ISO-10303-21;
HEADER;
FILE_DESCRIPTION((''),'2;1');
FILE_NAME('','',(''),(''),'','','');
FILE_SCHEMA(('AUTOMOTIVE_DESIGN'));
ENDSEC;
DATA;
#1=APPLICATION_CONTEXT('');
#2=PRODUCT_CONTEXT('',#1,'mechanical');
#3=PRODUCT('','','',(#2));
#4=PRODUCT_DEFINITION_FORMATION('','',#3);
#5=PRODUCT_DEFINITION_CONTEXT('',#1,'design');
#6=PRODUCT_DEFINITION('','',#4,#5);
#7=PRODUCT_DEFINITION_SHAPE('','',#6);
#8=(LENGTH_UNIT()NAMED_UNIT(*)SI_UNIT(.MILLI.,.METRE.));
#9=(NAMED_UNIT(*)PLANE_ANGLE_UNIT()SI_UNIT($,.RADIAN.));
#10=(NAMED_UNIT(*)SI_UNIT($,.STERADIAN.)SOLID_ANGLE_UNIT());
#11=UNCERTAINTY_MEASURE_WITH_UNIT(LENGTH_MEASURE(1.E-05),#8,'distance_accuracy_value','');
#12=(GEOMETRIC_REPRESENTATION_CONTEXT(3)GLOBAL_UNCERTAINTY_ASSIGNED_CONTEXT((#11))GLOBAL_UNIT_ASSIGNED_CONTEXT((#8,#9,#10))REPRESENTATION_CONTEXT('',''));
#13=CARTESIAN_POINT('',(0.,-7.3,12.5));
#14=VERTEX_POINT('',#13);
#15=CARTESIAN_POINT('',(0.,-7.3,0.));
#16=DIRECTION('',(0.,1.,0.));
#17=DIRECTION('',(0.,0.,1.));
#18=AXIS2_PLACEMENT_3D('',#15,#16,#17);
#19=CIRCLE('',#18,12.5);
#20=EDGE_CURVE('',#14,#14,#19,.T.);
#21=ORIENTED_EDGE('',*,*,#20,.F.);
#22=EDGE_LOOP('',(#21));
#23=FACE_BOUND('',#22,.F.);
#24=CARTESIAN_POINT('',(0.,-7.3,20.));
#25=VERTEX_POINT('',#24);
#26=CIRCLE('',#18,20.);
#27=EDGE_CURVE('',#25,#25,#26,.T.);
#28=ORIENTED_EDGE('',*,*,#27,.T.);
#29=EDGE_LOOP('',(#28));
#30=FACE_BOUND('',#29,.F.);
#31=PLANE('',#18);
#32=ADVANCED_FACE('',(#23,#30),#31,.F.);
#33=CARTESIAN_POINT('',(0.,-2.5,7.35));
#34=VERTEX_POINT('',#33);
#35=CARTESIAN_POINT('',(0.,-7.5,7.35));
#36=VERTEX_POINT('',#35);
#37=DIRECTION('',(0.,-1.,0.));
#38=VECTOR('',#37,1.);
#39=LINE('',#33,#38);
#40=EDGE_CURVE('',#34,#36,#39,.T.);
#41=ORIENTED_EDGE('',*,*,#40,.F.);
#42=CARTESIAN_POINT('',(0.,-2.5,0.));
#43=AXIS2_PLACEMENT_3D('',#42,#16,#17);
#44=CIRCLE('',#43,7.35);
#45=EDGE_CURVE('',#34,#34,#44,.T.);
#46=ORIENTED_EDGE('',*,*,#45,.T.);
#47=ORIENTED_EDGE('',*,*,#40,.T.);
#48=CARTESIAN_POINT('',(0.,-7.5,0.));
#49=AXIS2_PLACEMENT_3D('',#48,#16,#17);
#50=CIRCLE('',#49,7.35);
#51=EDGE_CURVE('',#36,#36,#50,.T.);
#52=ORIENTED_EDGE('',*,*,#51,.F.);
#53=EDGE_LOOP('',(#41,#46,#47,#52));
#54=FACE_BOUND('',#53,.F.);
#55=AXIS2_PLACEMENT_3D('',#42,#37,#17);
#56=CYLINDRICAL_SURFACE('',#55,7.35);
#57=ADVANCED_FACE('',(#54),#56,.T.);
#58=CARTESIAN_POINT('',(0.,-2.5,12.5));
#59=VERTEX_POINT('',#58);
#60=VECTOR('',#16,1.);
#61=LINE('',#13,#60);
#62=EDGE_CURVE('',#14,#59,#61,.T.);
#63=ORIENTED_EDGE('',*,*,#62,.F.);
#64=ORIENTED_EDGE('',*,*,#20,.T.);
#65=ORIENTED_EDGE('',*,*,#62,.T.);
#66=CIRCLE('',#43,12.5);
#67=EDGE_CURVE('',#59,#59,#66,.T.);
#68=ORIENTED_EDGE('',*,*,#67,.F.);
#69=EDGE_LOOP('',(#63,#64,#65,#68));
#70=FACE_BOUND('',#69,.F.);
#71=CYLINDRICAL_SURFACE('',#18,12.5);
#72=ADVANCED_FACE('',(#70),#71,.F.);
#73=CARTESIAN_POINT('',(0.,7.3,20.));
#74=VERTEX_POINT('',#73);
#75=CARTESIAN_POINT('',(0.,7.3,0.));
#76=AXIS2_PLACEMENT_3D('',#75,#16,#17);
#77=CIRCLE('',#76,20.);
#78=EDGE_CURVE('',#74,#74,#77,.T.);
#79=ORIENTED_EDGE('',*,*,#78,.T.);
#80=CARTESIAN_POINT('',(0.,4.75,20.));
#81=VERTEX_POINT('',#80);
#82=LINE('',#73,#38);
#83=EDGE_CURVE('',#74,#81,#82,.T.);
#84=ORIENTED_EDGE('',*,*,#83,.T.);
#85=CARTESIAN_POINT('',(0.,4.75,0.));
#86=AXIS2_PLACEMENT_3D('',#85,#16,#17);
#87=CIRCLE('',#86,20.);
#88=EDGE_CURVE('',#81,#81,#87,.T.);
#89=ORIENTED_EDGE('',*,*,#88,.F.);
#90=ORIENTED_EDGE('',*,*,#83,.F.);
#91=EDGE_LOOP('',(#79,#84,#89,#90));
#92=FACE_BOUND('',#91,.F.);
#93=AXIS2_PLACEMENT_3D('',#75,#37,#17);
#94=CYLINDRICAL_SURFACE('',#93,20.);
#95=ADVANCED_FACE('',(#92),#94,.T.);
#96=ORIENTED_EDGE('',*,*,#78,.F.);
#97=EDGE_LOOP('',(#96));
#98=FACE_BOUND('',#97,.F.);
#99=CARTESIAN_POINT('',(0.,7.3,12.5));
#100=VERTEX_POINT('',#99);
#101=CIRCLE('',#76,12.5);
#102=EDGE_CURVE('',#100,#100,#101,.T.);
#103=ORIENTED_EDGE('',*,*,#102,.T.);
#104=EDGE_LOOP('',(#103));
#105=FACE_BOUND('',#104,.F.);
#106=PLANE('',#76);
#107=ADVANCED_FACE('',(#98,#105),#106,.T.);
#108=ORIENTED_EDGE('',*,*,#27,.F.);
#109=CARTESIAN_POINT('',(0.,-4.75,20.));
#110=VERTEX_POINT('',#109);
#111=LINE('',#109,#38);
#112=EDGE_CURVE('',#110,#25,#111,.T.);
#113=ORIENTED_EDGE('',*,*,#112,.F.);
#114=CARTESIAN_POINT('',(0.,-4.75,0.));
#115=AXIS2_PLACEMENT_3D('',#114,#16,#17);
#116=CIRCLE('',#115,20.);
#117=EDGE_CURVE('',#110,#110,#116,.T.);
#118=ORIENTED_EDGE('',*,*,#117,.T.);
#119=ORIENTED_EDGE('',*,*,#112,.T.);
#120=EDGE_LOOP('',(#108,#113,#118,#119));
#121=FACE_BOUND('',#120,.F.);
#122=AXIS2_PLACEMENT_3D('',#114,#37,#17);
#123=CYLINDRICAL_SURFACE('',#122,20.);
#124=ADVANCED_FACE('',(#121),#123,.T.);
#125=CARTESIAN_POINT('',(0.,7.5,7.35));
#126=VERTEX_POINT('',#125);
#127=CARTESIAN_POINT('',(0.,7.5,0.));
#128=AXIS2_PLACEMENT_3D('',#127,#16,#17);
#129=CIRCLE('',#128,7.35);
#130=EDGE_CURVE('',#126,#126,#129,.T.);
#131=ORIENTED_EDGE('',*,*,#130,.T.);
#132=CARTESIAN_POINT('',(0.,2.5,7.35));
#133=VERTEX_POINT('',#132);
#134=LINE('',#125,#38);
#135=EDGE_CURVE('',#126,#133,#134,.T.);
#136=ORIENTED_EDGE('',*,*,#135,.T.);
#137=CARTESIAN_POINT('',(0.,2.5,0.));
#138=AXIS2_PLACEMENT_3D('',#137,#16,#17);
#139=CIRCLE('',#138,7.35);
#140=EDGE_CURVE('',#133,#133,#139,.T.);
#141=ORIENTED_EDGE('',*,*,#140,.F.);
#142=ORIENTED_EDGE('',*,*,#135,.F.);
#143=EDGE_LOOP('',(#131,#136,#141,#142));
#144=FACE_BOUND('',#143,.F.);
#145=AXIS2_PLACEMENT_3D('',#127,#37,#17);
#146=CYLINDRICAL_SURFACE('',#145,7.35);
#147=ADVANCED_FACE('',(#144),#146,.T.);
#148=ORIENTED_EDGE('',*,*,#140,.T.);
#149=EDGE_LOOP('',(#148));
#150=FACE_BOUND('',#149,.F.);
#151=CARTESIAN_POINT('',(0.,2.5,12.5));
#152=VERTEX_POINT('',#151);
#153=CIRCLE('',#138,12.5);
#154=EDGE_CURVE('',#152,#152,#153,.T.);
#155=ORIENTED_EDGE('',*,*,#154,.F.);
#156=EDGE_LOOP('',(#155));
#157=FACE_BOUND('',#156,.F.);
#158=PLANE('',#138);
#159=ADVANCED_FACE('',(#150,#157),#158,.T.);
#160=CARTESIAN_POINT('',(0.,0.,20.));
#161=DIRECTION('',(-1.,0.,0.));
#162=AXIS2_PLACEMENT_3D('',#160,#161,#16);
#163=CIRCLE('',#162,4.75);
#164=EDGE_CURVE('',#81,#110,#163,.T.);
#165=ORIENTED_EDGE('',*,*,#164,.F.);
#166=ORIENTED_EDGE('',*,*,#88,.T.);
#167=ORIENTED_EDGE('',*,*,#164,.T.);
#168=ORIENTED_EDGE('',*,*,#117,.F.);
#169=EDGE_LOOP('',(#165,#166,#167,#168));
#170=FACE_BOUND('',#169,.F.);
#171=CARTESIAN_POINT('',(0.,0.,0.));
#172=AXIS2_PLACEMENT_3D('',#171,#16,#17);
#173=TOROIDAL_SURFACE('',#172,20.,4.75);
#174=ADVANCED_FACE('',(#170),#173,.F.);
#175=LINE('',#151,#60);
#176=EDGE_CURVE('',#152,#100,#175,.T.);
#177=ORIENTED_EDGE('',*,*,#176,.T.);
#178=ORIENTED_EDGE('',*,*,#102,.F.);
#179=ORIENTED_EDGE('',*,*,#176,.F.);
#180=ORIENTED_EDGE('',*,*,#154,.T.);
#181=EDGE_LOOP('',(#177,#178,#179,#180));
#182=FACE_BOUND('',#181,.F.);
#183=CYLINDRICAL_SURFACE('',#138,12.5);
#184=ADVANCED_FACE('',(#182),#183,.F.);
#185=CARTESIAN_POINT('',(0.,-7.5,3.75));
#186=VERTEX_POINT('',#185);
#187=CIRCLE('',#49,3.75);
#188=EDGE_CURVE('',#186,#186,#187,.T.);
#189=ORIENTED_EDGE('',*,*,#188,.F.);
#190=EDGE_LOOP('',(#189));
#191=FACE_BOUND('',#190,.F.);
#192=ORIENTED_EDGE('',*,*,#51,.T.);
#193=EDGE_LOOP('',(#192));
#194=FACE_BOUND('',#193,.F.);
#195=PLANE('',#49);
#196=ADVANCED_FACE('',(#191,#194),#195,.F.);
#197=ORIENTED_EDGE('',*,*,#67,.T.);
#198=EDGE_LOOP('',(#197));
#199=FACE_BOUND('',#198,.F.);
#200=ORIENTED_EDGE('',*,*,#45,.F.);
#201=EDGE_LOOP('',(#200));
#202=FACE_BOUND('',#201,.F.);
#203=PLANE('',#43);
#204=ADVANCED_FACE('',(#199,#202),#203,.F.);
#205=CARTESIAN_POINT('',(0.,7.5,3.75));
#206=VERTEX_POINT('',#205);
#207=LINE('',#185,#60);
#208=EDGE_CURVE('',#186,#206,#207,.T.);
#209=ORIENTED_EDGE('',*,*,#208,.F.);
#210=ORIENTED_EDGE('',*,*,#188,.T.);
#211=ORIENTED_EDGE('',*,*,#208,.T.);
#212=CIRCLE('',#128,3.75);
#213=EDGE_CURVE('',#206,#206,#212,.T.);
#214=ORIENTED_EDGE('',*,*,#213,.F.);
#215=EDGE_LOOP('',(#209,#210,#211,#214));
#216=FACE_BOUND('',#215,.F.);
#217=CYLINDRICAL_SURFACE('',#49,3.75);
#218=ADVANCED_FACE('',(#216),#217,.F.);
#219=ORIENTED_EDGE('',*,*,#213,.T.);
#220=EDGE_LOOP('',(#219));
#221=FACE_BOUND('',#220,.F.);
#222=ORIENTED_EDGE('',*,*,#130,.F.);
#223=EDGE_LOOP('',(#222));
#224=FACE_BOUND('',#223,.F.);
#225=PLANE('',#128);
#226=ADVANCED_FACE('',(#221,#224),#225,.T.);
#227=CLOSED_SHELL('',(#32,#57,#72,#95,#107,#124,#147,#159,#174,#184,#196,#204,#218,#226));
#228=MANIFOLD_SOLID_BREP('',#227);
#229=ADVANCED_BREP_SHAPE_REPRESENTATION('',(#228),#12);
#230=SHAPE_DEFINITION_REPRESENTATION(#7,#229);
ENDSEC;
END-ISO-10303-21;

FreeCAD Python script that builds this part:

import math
import FreeCAD as App
import Part
import Sketcher

doc = App.newDocument("Part")
body = doc.addObject("PartDesign::Body", "Body")

sketch1 = doc.addObject("Sketcher::SketchObject", "Sketch")
body.addObject(sketch1)
sketch1.AttachmentSupport = (doc.YZ_Plane, [""])
sketch1.MapMode = "FlatFace"
sketch1.addGeometry(Part.LineSegment(App.Vector(-7.5, 7.3, 0), App.Vector(-7.5, 3.8, 0)), False)
sketch1.addGeometry(Part.LineSegment(App.Vector(-7.5, 3.8, 0), App.Vector(7.5, 3.8, 0)), False)
sketch1.addGeometry(Part.LineSegment(App.Vector(7.5, 3.8, 0), App.Vector(7.5, 7.3, 0)), False)
sketch1.addGeometry(Part.LineSegment(App.Vector(7.5, 7.3, 0), App.Vector(2.5, 7.3, 0)), False)
sketch1.addGeometry(Part.LineSegment(App.Vector(2.5, 7.3, 0), App.Vector(2.5, 12.5, 0)), False)
sketch1.addGeometry(Part.LineSegment(App.Vector(2.5, 12.5, 0), App.Vector(7.3, 12.5, 0)), False)
sketch1.addGeometry(Part.LineSegment(App.Vector(7.3, 12.5, 0), App.Vector(7.3, 20, 0)), False)
sketch1.addGeometry(Part.LineSegment(App.Vector(7.3, 20, 0), App.Vector(4.8, 20, 0)), False)
sketch1.addGeometry(Part.ArcOfCircle(Part.Circle(App.Vector(0, 20, 0), App.Vector(0, 0, 1), 4.8), math.radians(180), math.radians(360)), False)
sketch1.addGeometry(Part.LineSegment(App.Vector(-4.8, 20, 0), App.Vector(-7.3, 20, 0)), False)
sketch1.addGeometry(Part.LineSegment(App.Vector(-7.3, 20, 0), App.Vector(-7.3, 12.5, 0)), False)
sketch1.addGeometry(Part.LineSegment(App.Vector(-7.3, 12.5, 0), App.Vector(-2.5, 12.5, 0)), False)
sketch1.addGeometry(Part.LineSegment(App.Vector(-2.5, 12.5, 0), App.Vector(-2.5, 7.3, 0)), False)
sketch1.addGeometry(Part.LineSegment(App.Vector(-2.5, 7.3, 0), App.Vector(-7.5, 7.3, 0)), False)
sketch1.addConstraint(Sketcher.Constraint("Coincident", 0, 2, 1, 1))
sketch1.addConstraint(Sketcher.Constraint("Coincident", 1, 2, 2, 1))
sketch1.addConstraint(Sketcher.Constraint("Coincident", 2, 2, 3, 1))
sketch1.addConstraint(Sketcher.Constraint("Coincident", 3, 2, 4, 1))
sketch1.addConstraint(Sketcher.Constraint("Coincident", 4, 2, 5, 1))
sketch1.addConstraint(Sketcher.Constraint("Coincident", 5, 2, 6, 1))
sketch1.addConstraint(Sketcher.Constraint("Coincident", 6, 2, 7, 1))
sketch1.addConstraint(Sketcher.Constraint("Coincident", 7, 2, 8, 2))
sketch1.addConstraint(Sketcher.Constraint("Coincident", 8, 1, 9, 1))
sketch1.addConstraint(Sketcher.Constraint("Coincident", 9, 2, 10, 1))
sketch1.addConstraint(Sketcher.Constraint("Coincident", 10, 2, 11, 1))
sketch1.addConstraint(Sketcher.Constraint("Coincident", 11, 2, 12, 1))
sketch1.addConstraint(Sketcher.Constraint("Coincident", 12, 2, 13, 1))
sketch1.addConstraint(Sketcher.Constraint("Coincident", 13, 2, 0, 1))
sketch1.addConstraint(Sketcher.Constraint("Vertical", 0))
sketch1.addConstraint(Sketcher.Constraint("Horizontal", 1))
sketch1.addConstraint(Sketcher.Constraint("Vertical", 2))
sketch1.addConstraint(Sketcher.Constraint("Horizontal", 3))
sketch1.addConstraint(Sketcher.Constraint("Vertical", 4))
sketch1.addConstraint(Sketcher.Constraint("Horizontal", 5))
sketch1.addConstraint(Sketcher.Constraint("Vertical", 6))
sketch1.addConstraint(Sketcher.Constraint("Horizontal", 7))
sketch1.addConstraint(Sketcher.Constraint("Horizontal", 9))
sketch1.addConstraint(Sketcher.Constraint("Vertical", 10))
sketch1.addConstraint(Sketcher.Constraint("Horizontal", 11))
sketch1.addConstraint(Sketcher.Constraint("Vertical", 12))
sketch1.addConstraint(Sketcher.Constraint("Horizontal", 13))
sketch1.addConstraint(Sketcher.Constraint("Symmetric", 7, 2, 8, 1, -2))
sketch1.addConstraint(Sketcher.Constraint("Symmetric", 5, 2, 10, 2, -2))
sketch1.addConstraint(Sketcher.Constraint("Symmetric", 3, 2, 12, 2, -2))
sketch1.addConstraint(Sketcher.Constraint("Horizontal", 8, 3, 6, 2))
sketch1.addConstraint(Sketcher.Constraint("Equal", 3, 13))
sketch1.addConstraint(Sketcher.Constraint("DistanceX", 1, 1, 1, 2, 15.0))
sketch1.addConstraint(Sketcher.Constraint("DistanceX", 3, 2, 3, 1, 5.0))
sketch1.addConstraint(Sketcher.Constraint("Radius", 8, 4.75))
sketch1.addConstraint(Sketcher.Constraint("DistanceX", 5, 1, 5, 2, 4.8))
sketch1.addConstraint(Sketcher.Constraint("DistanceY", 0, 2, 0, 1, 3.6))
sketch1.addConstraint(Sketcher.Constraint("DistanceY", 6, 1, 6, 2, 7.5))
sketch1.addConstraint(Sketcher.Constraint("DistanceY", -1, 1, 8, 3, 20.0))
sketch1.addConstraint(Sketcher.Constraint("DistanceY", 4, 1, 4, 2, 5.15))
revolution = doc.addObject("PartDesign::Revolution", "Revolution")
body.addObject(revolution)
revolution.Profile = sketch1
revolution.ReferenceAxis = (sketch1, ["H_Axis"])
revolution.Angle = 360

doc.recompute()
